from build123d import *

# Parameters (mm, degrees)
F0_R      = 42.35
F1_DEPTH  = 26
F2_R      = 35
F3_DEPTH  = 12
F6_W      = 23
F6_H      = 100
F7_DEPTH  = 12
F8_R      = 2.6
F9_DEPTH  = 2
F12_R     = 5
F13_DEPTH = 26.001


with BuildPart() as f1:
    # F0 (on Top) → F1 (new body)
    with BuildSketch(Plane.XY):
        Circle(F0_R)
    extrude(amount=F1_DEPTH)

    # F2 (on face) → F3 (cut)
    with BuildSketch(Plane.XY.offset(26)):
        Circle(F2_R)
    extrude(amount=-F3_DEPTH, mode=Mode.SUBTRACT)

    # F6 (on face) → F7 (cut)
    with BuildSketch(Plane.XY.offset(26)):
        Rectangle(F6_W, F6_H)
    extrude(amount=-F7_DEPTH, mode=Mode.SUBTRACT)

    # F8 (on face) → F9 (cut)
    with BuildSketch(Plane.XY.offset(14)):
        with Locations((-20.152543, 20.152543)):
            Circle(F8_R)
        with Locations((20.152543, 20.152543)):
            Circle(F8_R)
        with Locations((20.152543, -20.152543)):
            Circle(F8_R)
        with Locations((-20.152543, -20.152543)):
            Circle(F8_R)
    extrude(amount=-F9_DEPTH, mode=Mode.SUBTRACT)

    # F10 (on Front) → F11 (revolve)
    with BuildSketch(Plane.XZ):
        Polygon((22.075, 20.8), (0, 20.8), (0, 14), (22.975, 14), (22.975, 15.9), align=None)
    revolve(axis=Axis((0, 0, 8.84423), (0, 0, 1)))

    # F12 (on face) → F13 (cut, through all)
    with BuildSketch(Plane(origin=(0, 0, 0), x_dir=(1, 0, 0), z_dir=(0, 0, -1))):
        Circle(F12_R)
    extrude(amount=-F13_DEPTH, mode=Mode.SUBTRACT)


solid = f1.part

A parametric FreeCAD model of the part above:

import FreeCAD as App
import Part
import Sketcher

V = App.Vector


def add_polygon(sketch, points):
    """Adds a closed chain of lines whose ends are joined by coincident constraints."""
    first, n = sketch.GeometryCount, len(points)
    for a, b in zip(points, points[1:] + points[:1]):
        sketch.addGeometry(Part.LineSegment(App.Vector(*a, 0), App.Vector(*b, 0)), False)
    for i in range(n):
        sketch.addConstraint(Sketcher.Constraint("Coincident", first + i, 2, first + (i + 1) % n, 1))

doc = App.newDocument("Part")
params = doc.addObject("Spreadsheet::Sheet", "Params")
for row, (alias, value) in enumerate([
    ("sketch1_diameter", "84.7 mm"),
    ("pad1_length", "26 mm"),
    ("sketch2_diameter", "70 mm"),
    ("pocket1_length", "12 mm"),
    ("sketch3_width", "23 mm"),
    ("sketch3_height", "100 mm"),
    ("pocket2_length", "12 mm"),
    ("sketch4_diameter", "5.2 mm"),
    ("pocket3_length", "2 mm"),
    ("sketch5_height", "6.8 mm"),
    ("sketch5_height2", "1.9 mm"),
    ("revolution_angle", "360 deg"),
    ("sketch6_diameter", "10 mm"),
], start=1):
    params.set(f"A{row}", alias)
    params.set(f"B{row}", "=" + value)
    params.setAlias(f"B{row}", alias)

body = doc.addObject("PartDesign::Body", "Body")

# Sketch on XY plane
sketch1 = body.newObject("Sketcher::SketchObject", "Sketch")
sketch1.AttachmentSupport = (doc.getObject("XY_Plane"), [""])
sketch1.MapMode = "FlatFace"
sketch1.addGeometry(Part.Circle(V(0, 0, 0), V(0, 0, 1), 42), False)
sketch1.addConstraint([
    Sketcher.Constraint("Coincident", 0, 3, -1, 1),
    Sketcher.Constraint("Diameter", 0, 84.7),
])
sketch1.setExpression("Constraints[1]", "Params.sketch1_diameter")
pad1 = body.newObject("PartDesign::Pad", "Pad")
pad1.Profile = sketch1
pad1.setExpression("Length", "Params.pad1_length")

# Sketch on XY plane
sketch2 = body.newObject("Sketcher::SketchObject", "Sketch001")
sketch2.AttachmentSupport = (doc.getObject("XY_Plane"), [""])
sketch2.MapMode = "FlatFace"
sketch2.AttachmentOffset = App.Placement(V(0, 0, 26), App.Rotation())
sketch2.addGeometry(Part.Circle(V(0, 0, 0), V(0, 0, 1), 35), False)
sketch2.addConstraint([
    Sketcher.Constraint("Coincident", 0, 3, -1, 1),
    Sketcher.Constraint("Diameter", 0, 70.0),
])
sketch2.setExpression("Constraints[1]", "Params.sketch2_diameter")
pocket1 = body.newObject("PartDesign::Pocket", "Pocket")
pocket1.Profile = sketch2
pocket1.setExpression("Length", "Params.pocket1_length")

# Sketch on XY plane
sketch3 = body.newObject("Sketcher::SketchObject", "Sketch002")
sketch3.AttachmentSupport = (doc.getObject("XY_Plane"), [""])
sketch3.MapMode = "FlatFace"
sketch3.AttachmentOffset = App.Placement(V(0, 0, 26), App.Rotation())
add_polygon(sketch3, [(-12, 50), (-12, -50), (12, -50), (12, 50)])  # lines 0-3
sketch3.addConstraint([
    Sketcher.Constraint("Vertical", 0),
    Sketcher.Constraint("Horizontal", 1),
    Sketcher.Constraint("Vertical", 2),
    Sketcher.Constraint("Horizontal", 3),
    Sketcher.Constraint("Symmetric", 0, 2, 2, 2, -1, 1),
    Sketcher.Constraint("DistanceX", 1, 1, 1, 2, 23.0),
    Sketcher.Constraint("DistanceY", 0, 2, 0, 1, 100.0),
])
sketch3.setExpression("Constraints[9]", "Params.sketch3_width")
sketch3.setExpression("Constraints[10]", "Params.sketch3_height")
pocket2 = body.newObject("PartDesign::Pocket", "Pocket001")
pocket2.Profile = sketch3
pocket2.setExpression("Length", "Params.pocket2_length")

# Sketch on XY plane
sketch4 = body.newObject("Sketcher::SketchObject", "Sketch003")
sketch4.AttachmentSupport = (doc.getObject("XY_Plane"), [""])
sketch4.MapMode = "FlatFace"
sketch4.AttachmentOffset = App.Placement(V(0, 0, 14), App.Rotation())
sketch4.addGeometry([
    Part.Circle(V(-20.2, 20.2, 0), V(0, 0, 1), 2.6),
    Part.Circle(V(20.2, 20.2, 0), V(0, 0, 1), 2.6),
    Part.Circle(V(20.2, -20.2, 0), V(0, 0, 1), 2.6),
    Part.Circle(V(-20.2, -20.2, 0), V(0, 0, 1), 2.6),
], False)
sketch4.addConstraint([
    Sketcher.Constraint("Equal", 0, 1),
    Sketcher.Constraint("Equal", 1, 2),
    Sketcher.Constraint("Equal", 2, 3),
    Sketcher.Constraint("Symmetric", 0, 3, 2, 3, -1, 1),
    Sketcher.Constraint("Symmetric", 1, 3, 3, 3, -1, 1),
    Sketcher.Constraint("Symmetric", 0, 3, 1, 3, -2),
    Sketcher.Constraint("Diameter", 0, 5.2),
    Sketcher.Constraint("DistanceX", 0, 3, -1, 1, 20.152543),
    Sketcher.Constraint("DistanceY", -1, 1, 0, 3, 20.152543),
])
sketch4.setExpression("Constraints[6]", "Params.sketch4_diameter")
pocket3 = body.newObject("PartDesign::Pocket", "Pocket002")
pocket3.Profile = sketch4
pocket3.setExpression("Length", "Params.pocket3_length")

# Sketch on XZ plane
sketch5 = body.newObject("Sketcher::SketchObject", "Sketch004")
sketch5.AttachmentSupport = (doc.getObject("XZ_Plane"), [""])
sketch5.MapMode = "FlatFace"
add_polygon(sketch5, [(22.1, 20.8), (0, 20.8), (0, 14), (23, 14), (23, 15.9)])  # lines 0-4
sketch5.addConstraint([
    Sketcher.Constraint("Horizontal", 0),
    Sketcher.Constraint("Vertical", 1),
    Sketcher.Constraint("Horizontal", 2),
    Sketcher.Constraint("Vertical", 3),
    Sketcher.Constraint("PointOnObject", 0, 2, -2),
    Sketcher.Constraint("DistanceY", 1, 2, 1, 1, 6.8),
    Sketcher.Constraint("DistanceY", 3, 1, 3, 2, 1.9),
    Sketcher.Constraint("DistanceY", -1, 1, 1, 2, 14.0),
    Sketcher.Constraint("DistanceX", 4, 2, 3, 2, 0.9),
    Sketcher.Constraint("DistanceX", 0, 2, 0, 1, 22.075),
])
sketch5.setExpression("Constraints[10]", "Params.sketch5_height")
sketch5.setExpression("Constraints[11]", "Params.sketch5_height2")
revolution = body.newObject("PartDesign::Revolution", "Revolution")
revolution.Profile = sketch5
revolution.ReferenceAxis = (sketch5, ["V_Axis"])
revolution.setExpression("Angle", "Params.revolution_angle")

# Sketch on XY plane
sketch6 = body.newObject("Sketcher::SketchObject", "Sketch005")
sketch6.AttachmentSupport = (doc.getObject("XY_Plane"), [""])
sketch6.MapMode = "FlatFace"
sketch6.addGeometry(Part.Circle(V(0, 0, 0), V(0, 0, 1), 5), False)
sketch6.addConstraint([
    Sketcher.Constraint("Coincident", 0, 3, -1, 1),
    Sketcher.Constraint("Diameter", 0, 10.0),
])
sketch6.setExpression("Constraints[1]", "Params.sketch6_diameter")
pocket4 = body.newObject("PartDesign::Pocket", "Pocket003")
pocket4.Profile = sketch6
pocket4.Type = "ThroughAll"
pocket4.Reversed = True

doc.recompute()
